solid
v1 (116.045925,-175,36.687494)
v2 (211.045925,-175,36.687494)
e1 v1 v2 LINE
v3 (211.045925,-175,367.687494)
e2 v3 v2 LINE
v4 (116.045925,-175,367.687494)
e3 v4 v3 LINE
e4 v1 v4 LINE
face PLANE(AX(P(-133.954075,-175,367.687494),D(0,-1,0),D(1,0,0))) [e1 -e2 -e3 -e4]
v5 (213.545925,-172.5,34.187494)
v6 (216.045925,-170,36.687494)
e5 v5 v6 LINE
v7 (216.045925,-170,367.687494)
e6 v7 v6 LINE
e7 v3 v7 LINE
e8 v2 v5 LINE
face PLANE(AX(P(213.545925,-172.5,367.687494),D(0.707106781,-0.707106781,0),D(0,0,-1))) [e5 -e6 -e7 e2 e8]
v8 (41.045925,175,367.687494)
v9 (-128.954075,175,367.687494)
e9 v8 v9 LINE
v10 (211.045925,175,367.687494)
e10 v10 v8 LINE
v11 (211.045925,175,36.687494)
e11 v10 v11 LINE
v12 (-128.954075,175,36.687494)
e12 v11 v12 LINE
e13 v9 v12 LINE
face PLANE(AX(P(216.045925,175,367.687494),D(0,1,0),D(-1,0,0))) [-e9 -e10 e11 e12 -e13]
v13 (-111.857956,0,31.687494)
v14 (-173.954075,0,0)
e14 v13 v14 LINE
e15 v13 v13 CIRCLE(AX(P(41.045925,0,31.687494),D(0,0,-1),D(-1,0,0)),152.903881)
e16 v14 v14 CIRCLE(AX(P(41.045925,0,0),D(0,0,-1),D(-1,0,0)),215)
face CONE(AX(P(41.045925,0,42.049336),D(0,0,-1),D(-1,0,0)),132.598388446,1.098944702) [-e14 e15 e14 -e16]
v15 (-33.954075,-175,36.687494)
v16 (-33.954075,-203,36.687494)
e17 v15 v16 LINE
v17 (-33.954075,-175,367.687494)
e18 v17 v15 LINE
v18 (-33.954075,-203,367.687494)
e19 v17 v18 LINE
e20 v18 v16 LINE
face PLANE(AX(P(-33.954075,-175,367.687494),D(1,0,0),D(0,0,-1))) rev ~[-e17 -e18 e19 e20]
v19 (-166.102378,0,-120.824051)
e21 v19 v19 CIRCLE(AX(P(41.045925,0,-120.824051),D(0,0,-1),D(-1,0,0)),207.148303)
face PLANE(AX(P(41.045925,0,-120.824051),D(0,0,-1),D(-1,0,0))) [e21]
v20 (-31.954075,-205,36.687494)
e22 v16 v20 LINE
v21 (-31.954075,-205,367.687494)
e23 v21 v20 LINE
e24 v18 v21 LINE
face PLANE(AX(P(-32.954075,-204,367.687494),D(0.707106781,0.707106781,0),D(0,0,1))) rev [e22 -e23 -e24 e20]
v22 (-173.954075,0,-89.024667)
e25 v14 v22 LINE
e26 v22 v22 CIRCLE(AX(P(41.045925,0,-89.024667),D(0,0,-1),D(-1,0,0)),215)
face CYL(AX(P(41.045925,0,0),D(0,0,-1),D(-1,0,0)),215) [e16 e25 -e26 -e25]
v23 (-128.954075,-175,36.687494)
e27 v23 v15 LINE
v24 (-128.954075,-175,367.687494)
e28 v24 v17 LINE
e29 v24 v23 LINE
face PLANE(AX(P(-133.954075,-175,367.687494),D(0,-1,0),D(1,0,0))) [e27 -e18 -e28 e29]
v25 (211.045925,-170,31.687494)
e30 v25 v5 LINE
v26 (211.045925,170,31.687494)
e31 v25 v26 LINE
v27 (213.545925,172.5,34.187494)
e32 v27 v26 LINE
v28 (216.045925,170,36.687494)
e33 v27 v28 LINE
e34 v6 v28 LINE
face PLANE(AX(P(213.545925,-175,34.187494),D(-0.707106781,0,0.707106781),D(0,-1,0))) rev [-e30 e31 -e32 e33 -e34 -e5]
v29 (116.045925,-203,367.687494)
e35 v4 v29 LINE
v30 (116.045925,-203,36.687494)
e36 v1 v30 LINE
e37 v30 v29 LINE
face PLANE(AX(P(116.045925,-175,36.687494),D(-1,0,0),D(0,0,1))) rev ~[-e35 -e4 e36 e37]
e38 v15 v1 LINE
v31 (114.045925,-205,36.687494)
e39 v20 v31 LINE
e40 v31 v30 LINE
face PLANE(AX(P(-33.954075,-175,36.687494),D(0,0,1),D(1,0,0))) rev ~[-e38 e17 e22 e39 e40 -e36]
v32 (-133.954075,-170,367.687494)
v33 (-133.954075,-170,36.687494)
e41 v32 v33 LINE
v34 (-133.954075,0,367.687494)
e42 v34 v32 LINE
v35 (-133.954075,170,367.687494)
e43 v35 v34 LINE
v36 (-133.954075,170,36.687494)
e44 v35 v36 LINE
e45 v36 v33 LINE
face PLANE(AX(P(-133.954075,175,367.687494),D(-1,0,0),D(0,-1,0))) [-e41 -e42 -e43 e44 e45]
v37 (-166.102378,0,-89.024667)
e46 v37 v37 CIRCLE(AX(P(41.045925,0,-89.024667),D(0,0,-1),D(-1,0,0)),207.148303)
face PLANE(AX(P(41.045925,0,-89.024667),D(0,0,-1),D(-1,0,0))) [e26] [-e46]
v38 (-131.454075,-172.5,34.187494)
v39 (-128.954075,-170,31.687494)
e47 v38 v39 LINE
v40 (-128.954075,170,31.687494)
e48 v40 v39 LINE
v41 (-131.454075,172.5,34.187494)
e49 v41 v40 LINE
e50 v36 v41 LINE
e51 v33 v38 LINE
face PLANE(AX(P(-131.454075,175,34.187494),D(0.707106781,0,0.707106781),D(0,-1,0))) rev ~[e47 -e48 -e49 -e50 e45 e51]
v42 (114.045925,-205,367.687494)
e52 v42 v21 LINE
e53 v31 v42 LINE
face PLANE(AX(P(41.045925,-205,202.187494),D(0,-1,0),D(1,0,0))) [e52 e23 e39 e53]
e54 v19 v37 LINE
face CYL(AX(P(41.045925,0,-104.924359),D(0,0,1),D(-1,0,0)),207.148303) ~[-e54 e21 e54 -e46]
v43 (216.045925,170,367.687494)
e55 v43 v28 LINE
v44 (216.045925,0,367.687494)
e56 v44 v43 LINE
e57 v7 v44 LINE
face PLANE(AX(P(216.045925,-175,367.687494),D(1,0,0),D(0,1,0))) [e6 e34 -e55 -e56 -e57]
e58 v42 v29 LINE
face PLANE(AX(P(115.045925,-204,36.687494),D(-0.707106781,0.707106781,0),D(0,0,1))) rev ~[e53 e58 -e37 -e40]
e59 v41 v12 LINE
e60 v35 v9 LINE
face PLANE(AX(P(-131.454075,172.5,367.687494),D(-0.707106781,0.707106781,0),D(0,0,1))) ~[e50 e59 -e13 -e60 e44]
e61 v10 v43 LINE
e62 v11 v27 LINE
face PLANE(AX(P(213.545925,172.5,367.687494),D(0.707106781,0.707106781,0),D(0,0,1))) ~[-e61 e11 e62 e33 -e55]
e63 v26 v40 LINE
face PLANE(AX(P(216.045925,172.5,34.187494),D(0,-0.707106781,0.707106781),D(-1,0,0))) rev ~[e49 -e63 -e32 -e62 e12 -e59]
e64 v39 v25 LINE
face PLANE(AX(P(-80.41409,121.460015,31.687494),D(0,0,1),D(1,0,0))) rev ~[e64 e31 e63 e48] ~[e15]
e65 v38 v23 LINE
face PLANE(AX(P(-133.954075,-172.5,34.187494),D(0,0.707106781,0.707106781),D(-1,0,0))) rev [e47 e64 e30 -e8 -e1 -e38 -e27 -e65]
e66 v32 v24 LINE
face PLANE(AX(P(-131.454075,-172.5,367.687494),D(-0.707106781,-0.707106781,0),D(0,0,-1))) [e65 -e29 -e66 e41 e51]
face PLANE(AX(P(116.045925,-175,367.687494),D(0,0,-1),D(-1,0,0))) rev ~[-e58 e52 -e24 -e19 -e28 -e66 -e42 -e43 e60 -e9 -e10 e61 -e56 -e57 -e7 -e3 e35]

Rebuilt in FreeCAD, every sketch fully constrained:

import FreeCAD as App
import Part
import Sketcher
from FreeCAD import Vector
Q = App.Units.Quantity


def edges_at(feature, points):
    """Names of the edges that pass closest to the given points."""
    edges = feature.Shape.Edges
    near = lambda p: min(range(len(edges)), key=lambda i: edges[i].distToShape(Part.Vertex(*p))[0])
    return sorted({f"Edge{near(p) + 1}" for p in points})


def add_polygon(sketch, points):
    """Adds a closed chain of lines whose ends are joined by coincident constraints."""
    first, n = sketch.GeometryCount, len(points)
    for a, b in zip(points, points[1:] + points[:1]):
        sketch.addGeometry(Part.LineSegment(App.Vector(*a, 0), App.Vector(*b, 0)), False)
    for i in range(n):
        sketch.addConstraint(Sketcher.Constraint("Coincident", first + i, 2, first + (i + 1) % n, 1))

doc = App.newDocument("Part")
body = doc.addObject("PartDesign::Body", "Body")

# Sketch on XZ plane
sketch1 = body.newObject("Sketcher::SketchObject", "Sketch")
sketch1.AttachmentSupport = (doc.getObject("XZ_Plane"), [""])
sketch1.MapMode = "FlatFace"
add_polygon(sketch1, [(41.045925, 367.687494), (-133.954075, 367.687494), (-133.954075, 42.049336), (-91.552463, 42.049336), (-173.954075, 0), (-173.954075, -89.024667), (-166.102378, -89.024667), (-166.102378, -120.824051), (41.045925, -120.824051)])  # lines 0-8
sketch1.addGeometry(Part.LineSegment(Vector(41.045925, 367.687494, 0), Vector(41.045925, -120.824051, 0)), True)  # axis
sketch1.addConstraint([
    Sketcher.Constraint("Horizontal", 0),
    Sketcher.Constraint("Vertical", 1),
    Sketcher.Constraint("Horizontal", 2),
    Sketcher.Constraint("Vertical", 4),
    Sketcher.Constraint("Horizontal", 5),
    Sketcher.Constraint("Vertical", 6),
    Sketcher.Constraint("Horizontal", 7),
    Sketcher.Constraint("Vertical", 8),
    Sketcher.Constraint("Vertical", 9),
    Sketcher.Constraint("Coincident", 9, 1, 8, 2),
    Sketcher.Constraint("PointOnObject", 3, 2, -1),
    Sketcher.Constraint("Horizontal", 6, 2, 9, 2),
    Sketcher.Constraint("DistanceX", 0, 2, 0, 1, Q("175 mm")),
    Sketcher.Constraint("DistanceX", 3, 2, 1, 2, Q("40 mm")),
    Sketcher.Constraint("DistanceX", 2, 1, 2, 2, Q("42.401612 mm")),
    Sketcher.Constraint("Distance", 3, Q("92.51039 mm")),
    Sketcher.Constraint("DistanceX", 5, 1, 5, 2, Q("7.851697 mm")),
    Sketcher.Constraint("DistanceY", 1, 2, 1, 1, Q("325.638158 mm")),
    Sketcher.Constraint("DistanceY", 4, 2, 4, 1, Q("89.024667 mm")),
    Sketcher.Constraint("DistanceY", 6, 2, 6, 1, Q("31.799384 mm")),
    Sketcher.Constraint("DistanceX", 0, 2, -1, 1, Q("133.954075 mm")),
])
revolution = body.newObject("PartDesign::Revolution", "Revolution")
revolution.Profile = sketch1
revolution.ReferenceAxis = (sketch1, ["Axis0"])
revolution.Angle = 360

# Sketch on XY plane
sketch2 = body.newObject("Sketcher::SketchObject", "Sketch001")
sketch2.AttachmentSupport = (doc.getObject("XY_Plane"), [""])
sketch2.MapMode = "FlatFace"
sketch2.AttachmentOffset = App.Placement(Vector(0, 0, 367.687494), App.Rotation())
add_polygon(sketch2, [(-133.954075, 175), (-133.954075, -175), (216.045925, -175), (216.045925, 175)])  # lines 0-3
sketch2.addConstraint([
    Sketcher.Constraint("Vertical", 0),
    Sketcher.Constraint("Horizontal", 1),
    Sketcher.Constraint("Vertical", 2),
    Sketcher.Constraint("Horizontal", 3),
    Sketcher.Constraint("Equal", 3, 0),
    Sketcher.Constraint("DistanceX", 1, 1, 1, 2, Q("350 mm")),
    Sketcher.Constraint("DistanceY", 0, 2, -1, 1, Q("175 mm")),
    Sketcher.Constraint("DistanceX", 0, 2, -1, 1, Q("133.954075 mm")),
])
pad1 = body.newObject("PartDesign::Pad", "Pad")
pad1.Profile = sketch2
pad1.Length = 336
pad1.Reversed = True
doc.recompute()

chamfer = body.newObject("PartDesign::Chamfer", "Chamfer")
chamfer.Base = (pad1, edges_at(pad1, [
    (41.046, 175, 31.687),
    (-133.954, 0, 31.687),
    (216.046, 0, 31.687),
    (41.046, -175, 31.687),
]))
chamfer.Size = 5
doc.recompute()

chamfer2 = body.newObject("PartDesign::Chamfer", "Chamfer001")
chamfer2.Base = (chamfer, edges_at(chamfer, [
    (216.046, 175, 202.187),
    (216.046, -175, 202.187),
    (-133.954, 175, 202.187),
    (-133.954, -175, 202.187),
]))
chamfer2.Size = 5

# Sketch on XZ plane
sketch3 = body.newObject("Sketcher::SketchObject", "Sketch002")
sketch3.AttachmentSupport = (doc.getObject("XZ_Plane"), [""])
sketch3.MapMode = "FlatFace"
sketch3.AttachmentOffset = App.Placement(Vector(0, 0, 175), App.Rotation())
add_polygon(sketch3, [(-33.954075, 367.687494), (-33.954075, 36.687494), (116.045925, 36.687494), (116.045925, 367.687494)])  # lines 0-3
sketch3.addConstraint([
    Sketcher.Constraint("Vertical", 0),
    Sketcher.Constraint("Horizontal", 1),
    Sketcher.Constraint("Vertical", 2),
    Sketcher.Constraint("Horizontal", 3),
    Sketcher.Constraint("DistanceX", 1, 1, 1, 2, Q("150 mm")),
    Sketcher.Constraint("DistanceY", 0, 2, 0, 1, Q("331 mm")),
    Sketcher.Constraint("DistanceX", 0, 2, -1, 1, Q("33.954075 mm")),
    Sketcher.Constraint("DistanceY", -1, 1, 0, 2, Q("36.687494 mm")),
])
pad2 = body.newObject("PartDesign::Pad", "Pad001")
pad2.Profile = sketch3
pad2.Length = 30
doc.recompute()

chamfer3 = body.newObject("PartDesign::Chamfer", "Chamfer002")
chamfer3.Base = (pad2, edges_at(pad2, [(-33.954, -205, 202.187), (116.046, -205, 202.187)]))
chamfer3.Size = 2

doc.recompute()
